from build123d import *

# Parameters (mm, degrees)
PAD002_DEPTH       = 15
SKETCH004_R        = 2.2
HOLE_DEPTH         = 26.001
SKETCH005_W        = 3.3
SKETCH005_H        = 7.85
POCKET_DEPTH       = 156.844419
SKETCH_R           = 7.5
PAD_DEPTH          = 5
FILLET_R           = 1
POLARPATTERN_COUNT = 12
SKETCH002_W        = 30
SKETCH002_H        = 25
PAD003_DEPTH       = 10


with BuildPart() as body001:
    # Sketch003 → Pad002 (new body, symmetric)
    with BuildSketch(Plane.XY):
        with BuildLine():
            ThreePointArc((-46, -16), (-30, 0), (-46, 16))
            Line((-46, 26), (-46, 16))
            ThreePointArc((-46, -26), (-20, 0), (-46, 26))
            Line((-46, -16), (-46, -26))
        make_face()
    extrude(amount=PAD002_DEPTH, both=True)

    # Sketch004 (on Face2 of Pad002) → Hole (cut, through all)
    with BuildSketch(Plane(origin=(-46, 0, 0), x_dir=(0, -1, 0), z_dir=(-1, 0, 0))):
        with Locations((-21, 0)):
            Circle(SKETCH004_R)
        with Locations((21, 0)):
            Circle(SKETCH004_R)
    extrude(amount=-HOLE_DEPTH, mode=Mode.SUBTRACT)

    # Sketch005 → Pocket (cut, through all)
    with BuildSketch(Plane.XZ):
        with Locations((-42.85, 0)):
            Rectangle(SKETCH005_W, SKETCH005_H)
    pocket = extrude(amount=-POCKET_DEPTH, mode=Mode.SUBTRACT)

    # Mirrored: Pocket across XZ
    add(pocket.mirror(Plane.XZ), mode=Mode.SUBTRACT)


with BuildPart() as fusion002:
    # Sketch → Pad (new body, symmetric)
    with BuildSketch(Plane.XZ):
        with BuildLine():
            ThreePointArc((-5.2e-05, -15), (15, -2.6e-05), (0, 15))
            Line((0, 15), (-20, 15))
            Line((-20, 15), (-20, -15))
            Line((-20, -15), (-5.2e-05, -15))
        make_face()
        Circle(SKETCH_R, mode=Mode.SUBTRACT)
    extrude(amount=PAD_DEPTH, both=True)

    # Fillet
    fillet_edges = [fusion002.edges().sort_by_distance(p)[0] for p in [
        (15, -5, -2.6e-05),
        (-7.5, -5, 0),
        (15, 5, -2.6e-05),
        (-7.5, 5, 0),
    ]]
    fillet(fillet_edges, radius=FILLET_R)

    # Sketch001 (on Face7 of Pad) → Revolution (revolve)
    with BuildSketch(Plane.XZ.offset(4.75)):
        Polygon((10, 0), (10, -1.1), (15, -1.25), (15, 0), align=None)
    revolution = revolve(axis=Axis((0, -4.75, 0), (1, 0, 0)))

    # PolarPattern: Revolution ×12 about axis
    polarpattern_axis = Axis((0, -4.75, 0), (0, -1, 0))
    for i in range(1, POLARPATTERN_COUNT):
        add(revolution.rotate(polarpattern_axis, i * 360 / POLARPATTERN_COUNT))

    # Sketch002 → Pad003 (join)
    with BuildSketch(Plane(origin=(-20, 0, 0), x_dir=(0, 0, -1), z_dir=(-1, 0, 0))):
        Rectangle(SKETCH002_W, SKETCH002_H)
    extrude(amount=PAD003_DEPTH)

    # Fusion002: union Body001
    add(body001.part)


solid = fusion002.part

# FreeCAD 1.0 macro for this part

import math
import FreeCAD as App
import Part
import Sketcher

V = App.Vector


def edges_at(feature, points):
    """Names of the edges that pass closest to the given points."""
    edges = feature.Shape.Edges
    near = lambda p: min(range(len(edges)), key=lambda i: edges[i].distToShape(Part.Vertex(*p))[0])
    return sorted({f"Edge{near(p) + 1}" for p in points})

doc = App.newDocument("Part")
body = doc.addObject("PartDesign::Body", "Body")

sketch1 = body.newObject("Sketcher::SketchObject", "Sketch")
sketch1.AttachmentSupport = (doc.getObject("XY_Plane"), [""])
sketch1.MapMode = "FlatFace"
sketch1.addGeometry([
    Part.ArcOfCircle(Part.Circle(V(-46, 0, 0), V(0, 0, 1), 16), math.radians(-90), math.radians(90)),
    Part.LineSegment(V(-46, -16, 0), V(-46, -26, 0)),
    Part.ArcOfCircle(Part.Circle(V(-46, 0, 0), V(0, 0, 1), 26), math.radians(-90), math.radians(90)),
    Part.LineSegment(V(-46, 26, 0), V(-46, 16, 0)),
], False)
sketch1.addConstraint([
    Sketcher.Constraint("Coincident", 0, 1, 1, 1),
    Sketcher.Constraint("Coincident", 1, 2, 2, 1),
    Sketcher.Constraint("Coincident", 2, 2, 3, 1),
    Sketcher.Constraint("Coincident", 3, 2, 0, 2),
    Sketcher.Constraint("Vertical", 1),
    Sketcher.Constraint("Vertical", 3),
    Sketcher.Constraint("Coincident", 2, 3, 0, 3),
    Sketcher.Constraint("Symmetric", 1, 2, 2, 2, -1),
    Sketcher.Constraint("Vertical", 2, 3, 0, 1),
    Sketcher.Constraint("Radius", 0, 16.0),
    Sketcher.Constraint("Radius", 2, 26.0),
    Sketcher.Constraint("DistanceX", 0, 3, -1, 1, 46.0),
])
pad1 = body.newObject("PartDesign::Pad", "Pad")
pad1.Profile = sketch1
pad1.Length = 30
pad1.Midplane = True

sketch2 = body.newObject("Sketcher::SketchObject", "Sketch001")
sketch2.AttachmentSupport = (doc.getObject("YZ_Plane"), [""])
sketch2.MapMode = "FlatFace"
sketch2.AttachmentOffset = App.Placement(V(0, 0, -46), App.Rotation())
sketch2.addGeometry([
    Part.Circle(V(21, 0, 0), V(0, 0, 1), 2.2),
    Part.Circle(V(-21, 0, 0), V(0, 0, 1), 2.2),
], False)
sketch2.addConstraint([
    Sketcher.Constraint("Equal", 0, 1),
    Sketcher.Constraint("Symmetric", 0, 3, 1, 3, -1, 1),
    Sketcher.Constraint("PointOnObject", 0, 3, -1),
    Sketcher.Constraint("Diameter", 0, 4.4),
    Sketcher.Constraint("DistanceX", -1, 1, 0, 3, 21.0),
])
pocket1 = body.newObject("PartDesign::Pocket", "Pocket")
pocket1.Profile = sketch2
pocket1.Type = "ThroughAll"
pocket1.Reversed = True

sketch3 = body.newObject("Sketcher::SketchObject", "Sketch002")
sketch3.AttachmentSupport = (doc.getObject("XZ_Plane"), [""])
sketch3.MapMode = "FlatFace"
sketch3.addGeometry([
    Part.LineSegment(V(-44.5, 3.925, 0), V(-44.5, -3.925, 0)),
    Part.LineSegment(V(-44.5, -3.925, 0), V(-41.2, -3.925, 0)),
    Part.LineSegment(V(-41.2, -3.925, 0), V(-41.2, 3.925, 0)),
    Part.LineSegment(V(-41.2, 3.925, 0), V(-44.5, 3.925, 0)),
], False)
sketch3.addConstraint([
    Sketcher.Constraint("Coincident", 0, 2, 1, 1),
    Sketcher.Constraint("Coincident", 1, 2, 2, 1),
    Sketcher.Constraint("Coincident", 2, 2, 3, 1),
    Sketcher.Constraint("Coincident", 3, 2, 0, 1),
    Sketcher.Constraint("Vertical", 0),
    Sketcher.Constraint("Horizontal", 1),
    Sketcher.Constraint("Vertical", 2),
    Sketcher.Constraint("Horizontal", 3),
    Sketcher.Constraint("DistanceX", 1, 1, 1, 2, 3.3),
    Sketcher.Constraint("DistanceY", 0, 2, 0, 1, 7.85),
    Sketcher.Constraint("DistanceX", 0, 2, -1, 1, 44.5),
    Sketcher.Constraint("DistanceY", 0, 2, -1, 1, 3.925),
])
pocket2 = body.newObject("PartDesign::Pocket", "Pocket001")
pocket2.Profile = sketch3
pocket2.Type = "ThroughAll"
doc.recompute()

mirrored = body.newObject("PartDesign::Mirrored", "Mirrored")
mirrored.Originals = [pocket2]
mirrored.MirrorPlane = (doc.getObject("XZ_Plane"), [""])
body.Tip = mirrored
body2 = doc.addObject("PartDesign::Body", "Body001")

sketch4 = body2.newObject("Sketcher::SketchObject", "Sketch003")
sketch4.AttachmentSupport = (doc.getObject("XZ_Plane001"), [""])
sketch4.MapMode = "FlatFace"
sketch4.addGeometry([
    Part.ArcOfCircle(Part.Circle(V(0, 0, 0), V(0, 0, 1), 15), math.radians(-90.000199), math.radians(90)),
    Part.LineSegment(V(0, 15, 0), V(-20, 15, 0)),
    Part.LineSegment(V(-20, 15, 0), V(-20, -15, 0)),
    Part.LineSegment(V(-20, -15, 0), V(-0.000052, -15, 0)),
    Part.Circle(V(0, 0, 0), V(0, 0, 1), 7.5),
], False)
sketch4.addConstraint([
    Sketcher.Constraint("Tangent", 0, 2, 1, 1),
    Sketcher.Constraint("Coincident", 1, 2, 2, 1),
    Sketcher.Constraint("Coincident", 2, 2, 3, 1),
    Sketcher.Constraint("Coincident", 3, 2, 0, 1),
    Sketcher.Constraint("Horizontal", 1),
    Sketcher.Constraint("Vertical", 2),
    Sketcher.Constraint("Horizontal", 3),
    Sketcher.Constraint("Coincident", 0, 3, -1, 1),
    Sketcher.Constraint("Coincident", 4, 3, -1, 1),
    Sketcher.Constraint("Diameter", 4, 15.0),
    Sketcher.Constraint("Radius", 0, 15.0),
    Sketcher.Constraint("DistanceX", 1, 2, 1, 1, 20.0),
    Sketcher.Constraint("DistanceX", 3, 1, 3, 2, 19.999948),
])
pad2 = body2.newObject("PartDesign::Pad", "Pad001")
pad2.Profile = sketch4
pad2.Length = 10
pad2.Midplane = True
doc.recompute()

fillet = body2.newObject("PartDesign::Fillet", "Fillet")
fillet.Base = (pad2, edges_at(pad2, [
    (15, -5, 0),
    (-7.5, -5, 0),
    (15, 5, 0),
    (-7.5, 5, 0),
]))
fillet.Radius = 1

sketch5 = body2.newObject("Sketcher::SketchObject", "Sketch004")
sketch5.AttachmentSupport = (doc.getObject("XZ_Plane001"), [""])
sketch5.MapMode = "FlatFace"
sketch5.AttachmentOffset = App.Placement(V(0, 0, 4.75), App.Rotation())
sketch5.addGeometry([
    Part.LineSegment(V(10, 0, 0), V(10, -1.1, 0)),
    Part.LineSegment(V(10, -1.1, 0), V(15, -1.25, 0)),
    Part.LineSegment(V(15, -1.25, 0), V(15, 0, 0)),
    Part.LineSegment(V(15, 0, 0), V(10, 0, 0)),
], False)
sketch5.addConstraint([
    Sketcher.Constraint("Coincident", 0, 2, 1, 1),
    Sketcher.Constraint("Coincident", 1, 2, 2, 1),
    Sketcher.Constraint("Coincident", 2, 2, 3, 1),
    Sketcher.Constraint("Coincident", 3, 2, 0, 1),
    Sketcher.Constraint("Vertical", 0),
    Sketcher.Constraint("Vertical", 2),
    Sketcher.Constraint("Horizontal", 3),
    Sketcher.Constraint("PointOnObject", 2, 2, -1),
    Sketcher.Constraint("DistanceX", 3, 2, 3, 1, 5.0),
    Sketcher.Constraint("DistanceY", 0, 2, 0, 1, 1.1),
    Sketcher.Constraint("DistanceX", -1, 1, 0, 2, 10.0),
    Sketcher.Constraint("DistanceY", 2, 1, 2, 2, 1.25),
])
revolution = body2.newObject("PartDesign::Revolution", "Revolution")
revolution.Profile = sketch5
revolution.ReferenceAxis = (sketch5, ["H_Axis"])
revolution.Angle = 360
doc.recompute()

polarpattern = body2.newObject("PartDesign::PolarPattern", "PolarPattern")
polarpattern.Originals = [revolution]
polarpattern.Axis = (doc.getObject("Y_Axis001"), [""])
polarpattern.Angle = 360
polarpattern.Occurrences = 12
body2.Tip = polarpattern

sketch6 = body2.newObject("Sketcher::SketchObject", "Sketch005")
sketch6.AttachmentSupport = (doc.getObject("YZ_Plane001"), [""])
sketch6.MapMode = "FlatFace"
sketch6.AttachmentOffset = App.Placement(V(0, 0, -20), App.Rotation())
sketch6.addGeometry([
    Part.LineSegment(V(-12.5, 15, 0), V(12.5, 15, 0)),
    Part.LineSegment(V(12.5, 15, 0), V(12.5, -15, 0)),
    Part.LineSegment(V(12.5, -15, 0), V(-12.5, -15, 0)),
    Part.LineSegment(V(-12.5, -15, 0), V(-12.5, 15, 0)),
], False)
sketch6.addConstraint([
    Sketcher.Constraint("Coincident", 0, 2, 1, 1),
    Sketcher.Constraint("Coincident", 1, 2, 2, 1),
    Sketcher.Constraint("Coincident", 2, 2, 3, 1),
    Sketcher.Constraint("Coincident", 3, 2, 0, 1),
    Sketcher.Constraint("Horizontal", 0),
    Sketcher.Constraint("Vertical", 1),
    Sketcher.Constraint("Horizontal", 2),
    Sketcher.Constraint("Vertical", 3),
    Sketcher.Constraint("Symmetric", 0, 2, 2, 2, -1, 1),
    Sketcher.Constraint("DistanceX", 0, 1, 0, 2, 25.0),
    Sketcher.Constraint("DistanceY", 1, 2, 1, 1, 30.0),
])
pad3 = body2.newObject("PartDesign::Pad", "Pad002")
pad3.Profile = sketch6
pad3.Length = 10
pad3.Reversed = True
doc.recompute()

boolean = body2.newObject("PartDesign::Boolean", "Boolean")
boolean.Type = "Fuse"
boolean.addObjects([body])

doc.recompute()
